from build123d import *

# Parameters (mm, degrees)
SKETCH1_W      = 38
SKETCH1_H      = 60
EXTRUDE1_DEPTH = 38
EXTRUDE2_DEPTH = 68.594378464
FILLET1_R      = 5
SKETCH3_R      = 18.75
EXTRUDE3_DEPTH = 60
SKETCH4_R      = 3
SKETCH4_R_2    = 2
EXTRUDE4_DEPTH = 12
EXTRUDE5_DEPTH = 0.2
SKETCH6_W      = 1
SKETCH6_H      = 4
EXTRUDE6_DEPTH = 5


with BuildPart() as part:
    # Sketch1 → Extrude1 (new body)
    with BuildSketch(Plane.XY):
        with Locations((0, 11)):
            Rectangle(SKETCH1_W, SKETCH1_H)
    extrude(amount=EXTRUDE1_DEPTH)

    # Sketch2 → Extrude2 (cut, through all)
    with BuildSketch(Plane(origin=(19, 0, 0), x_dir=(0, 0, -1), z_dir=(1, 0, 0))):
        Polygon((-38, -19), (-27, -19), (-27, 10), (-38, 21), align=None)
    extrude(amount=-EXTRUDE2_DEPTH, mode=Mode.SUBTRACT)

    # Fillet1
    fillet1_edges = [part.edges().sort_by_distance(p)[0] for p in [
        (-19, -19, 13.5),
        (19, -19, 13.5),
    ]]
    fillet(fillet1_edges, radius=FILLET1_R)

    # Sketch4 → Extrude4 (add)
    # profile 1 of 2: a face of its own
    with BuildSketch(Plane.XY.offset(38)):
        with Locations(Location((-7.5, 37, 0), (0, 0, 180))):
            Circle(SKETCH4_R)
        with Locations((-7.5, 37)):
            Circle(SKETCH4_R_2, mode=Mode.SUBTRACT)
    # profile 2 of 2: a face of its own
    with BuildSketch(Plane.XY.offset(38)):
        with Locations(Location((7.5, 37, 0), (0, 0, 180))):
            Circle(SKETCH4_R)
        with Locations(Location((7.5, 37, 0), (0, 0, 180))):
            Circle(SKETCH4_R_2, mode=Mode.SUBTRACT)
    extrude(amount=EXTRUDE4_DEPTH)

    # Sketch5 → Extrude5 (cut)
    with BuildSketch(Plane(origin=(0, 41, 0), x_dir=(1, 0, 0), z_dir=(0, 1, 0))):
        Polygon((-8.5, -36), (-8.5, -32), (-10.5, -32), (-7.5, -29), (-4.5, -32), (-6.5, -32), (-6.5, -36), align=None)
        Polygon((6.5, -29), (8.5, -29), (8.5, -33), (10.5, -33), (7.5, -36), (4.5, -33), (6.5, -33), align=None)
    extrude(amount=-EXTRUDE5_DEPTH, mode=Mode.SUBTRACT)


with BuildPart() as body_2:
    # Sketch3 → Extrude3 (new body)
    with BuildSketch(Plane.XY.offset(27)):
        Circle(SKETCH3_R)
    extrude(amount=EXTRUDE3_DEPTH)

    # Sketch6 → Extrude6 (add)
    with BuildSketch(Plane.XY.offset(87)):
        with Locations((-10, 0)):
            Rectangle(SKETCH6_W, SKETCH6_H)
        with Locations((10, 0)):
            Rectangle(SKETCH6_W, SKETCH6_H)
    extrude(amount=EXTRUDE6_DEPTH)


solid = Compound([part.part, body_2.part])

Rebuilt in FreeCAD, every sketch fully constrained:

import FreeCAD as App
import Part
import Sketcher

V = App.Vector
Q = App.Units.Quantity


def edges_at(feature, points):
    """Names of the edges that pass closest to the given points."""
    edges = feature.Shape.Edges
    near = lambda p: min(range(len(edges)), key=lambda i: edges[i].distToShape(Part.Vertex(*p))[0])
    return sorted({f"Edge{near(p) + 1}" for p in points})


def add_polygon(sketch, points):
    """Adds a closed chain of lines whose ends are joined by coincident constraints."""
    first, n = sketch.GeometryCount, len(points)
    for a, b in zip(points, points[1:] + points[:1]):
        sketch.addGeometry(Part.LineSegment(App.Vector(*a, 0), App.Vector(*b, 0)), False)
    for i in range(n):
        sketch.addConstraint(Sketcher.Constraint("Coincident", first + i, 2, first + (i + 1) % n, 1))

doc = App.newDocument("Part")
body = doc.addObject("PartDesign::Body", "Body")

# Sketch on XY plane
sketch1 = body.newObject("Sketcher::SketchObject", "Sketch")
sketch1.AttachmentSupport = (doc.getObject("XY_Plane"), [""])
sketch1.MapMode = "FlatFace"
add_polygon(sketch1, [(-19, 41), (-19, -19), (19, -19), (19, 41)])  # lines 0-3
sketch1.addConstraint([
    Sketcher.Constraint("Vertical", 0),
    Sketcher.Constraint("Horizontal", 1),
    Sketcher.Constraint("Vertical", 2),
    Sketcher.Constraint("Horizontal", 3),
    Sketcher.Constraint("DistanceX", 1, 1, 1, 2, Q("38 mm")),
    Sketcher.Constraint("DistanceY", 0, 2, 0, 1, Q("60 mm")),
    Sketcher.Constraint("DistanceX", 0, 2, -1, 1, Q("19 mm")),
    Sketcher.Constraint("DistanceY", 0, 2, -1, 1, Q("19 mm")),
])
pad1 = body.newObject("PartDesign::Pad", "Pad")
pad1.Profile = sketch1
pad1.Length = 38

# Sketch on YZ plane
sketch2 = body.newObject("Sketcher::SketchObject", "Sketch001")
sketch2.AttachmentSupport = (doc.getObject("YZ_Plane"), [""])
sketch2.MapMode = "FlatFace"
sketch2.AttachmentOffset = App.Placement(V(0, 0, 19), App.Rotation())
add_polygon(sketch2, [(-19, 38), (-19, 27), (10, 27), (21, 38)])  # lines 0-3
sketch2.addConstraint([
    Sketcher.Constraint("Vertical", 0),
    Sketcher.Constraint("Horizontal", 1),
    Sketcher.Constraint("Horizontal", 3),
    Sketcher.Constraint("DistanceX", 1, 1, 1, 2, Q("29 mm")),
    Sketcher.Constraint("DistanceX", 3, 2, 3, 1, Q("40 mm")),
    Sketcher.Constraint("DistanceY", 0, 2, 0, 1, Q("11 mm")),
    Sketcher.Constraint("DistanceX", 0, 2, -1, 1, Q("19 mm")),
    Sketcher.Constraint("DistanceY", -1, 1, 0, 2, Q("27 mm")),
])
pocket1 = body.newObject("PartDesign::Pocket", "Pocket")
pocket1.Profile = sketch2
pocket1.Type = "ThroughAll"
doc.recompute()

fillet = body.newObject("PartDesign::Fillet", "Fillet")
fillet.Base = (pocket1, edges_at(pocket1, [(-19, -19, 13.5), (19, -19, 13.5)]))
fillet.Radius = 5

# Sketch on XY plane
sketch3 = body.newObject("Sketcher::SketchObject", "Sketch002")
sketch3.AttachmentSupport = (doc.getObject("XY_Plane"), [""])
sketch3.MapMode = "FlatFace"
sketch3.AttachmentOffset = App.Placement(V(0, 0, 38), App.Rotation())
sketch3.addGeometry([
    Part.Circle(V(-7.5, 37, 0), V(0, 0, 1), 3),
    Part.Circle(V(-7.5, 37, 0), V(0, 0, 1), 2),
    Part.Circle(V(7.5, 37, 0), V(0, 0, 1), 3),
    Part.Circle(V(7.5, 37, 0), V(0, 0, 1), 2),
], False)
sketch3.addConstraint([
    Sketcher.Constraint("Coincident", 1, 3, 0, 3),
    Sketcher.Constraint("Coincident", 3, 3, 2, 3),
    Sketcher.Constraint("Equal", 0, 2),
    Sketcher.Constraint("Equal", 1, 3),
    Sketcher.Constraint("Symmetric", 0, 3, 2, 3, -2),
    Sketcher.Constraint("Diameter", 0, Q("6 mm")),
    Sketcher.Constraint("Diameter", 1, Q("4 mm")),
    Sketcher.Constraint("DistanceY", -1, 1, 0, 3, Q("37 mm")),
    Sketcher.Constraint("DistanceX", 0, 3, 2, 3, Q("15 mm")),
])
pad2 = body.newObject("PartDesign::Pad", "Pad001")
pad2.Profile = sketch3
pad2.Length = 12

# Sketch on XZ plane
sketch4 = body.newObject("Sketcher::SketchObject", "Sketch003")
sketch4.AttachmentSupport = (doc.getObject("XZ_Plane"), [""])
sketch4.MapMode = "FlatFace"
sketch4.AttachmentOffset = App.Placement(V(0, 0, -41), App.Rotation())
add_polygon(sketch4, [(-8.5, 32), (-8.5, 36), (-6.5, 36), (-6.5, 32), (-4.5, 32), (-7.5, 29), (-10.5, 32)])  # lines 0-6
add_polygon(sketch4, [(8.5, 29), (6.5, 29), (6.5, 33), (4.5, 33), (7.5, 36), (10.5, 33), (8.5, 33)])  # lines 7-13
sketch4.addConstraint([
    Sketcher.Constraint("Vertical", 0),
    Sketcher.Constraint("Horizontal", 1),
    Sketcher.Constraint("Vertical", 2),
    Sketcher.Constraint("Horizontal", 3),
    Sketcher.Constraint("Horizontal", 6),
    Sketcher.Constraint("Horizontal", 7),
    Sketcher.Constraint("Vertical", 8),
    Sketcher.Constraint("Horizontal", 9),
    Sketcher.Constraint("Horizontal", 12),
    Sketcher.Constraint("Vertical", 13),
    Sketcher.Constraint("Perpendicular", 4, 5),
    Sketcher.Constraint("Perpendicular", 5, 10),
    Sketcher.Constraint("Perpendicular", 10, 11),
    Sketcher.Constraint("Horizontal", 3, 2, 5, 2),
    Sketcher.Constraint("Horizontal", 4, 2, 7, 2),
    Sketcher.Constraint("Horizontal", 1, 2, 10, 2),
    Sketcher.Constraint("Horizontal", 9, 2, 11, 2),
    Sketcher.Constraint("Equal", 1, 3),
    Sketcher.Constraint("Equal", 3, 6),
    Sketcher.Constraint("Equal", 6, 7),
    Sketcher.Constraint("Equal", 7, 9),
    Sketcher.Constraint("Equal", 9, 12),
    Sketcher.Constraint("Equal", 4, 5),
    Sketcher.Constraint("DistanceX", 1, 1, 1, 2, Q("2 mm")),
    Sketcher.Constraint("DistanceY", 0, 1, 0, 2, Q("4 mm")),
    Sketcher.Constraint("DistanceY", -1, 1, 0, 2, Q("36 mm")),
    Sketcher.Constraint("DistanceX", 3, 2, 7, 2, Q("11 mm")),
    Sketcher.Constraint("DistanceX", 0, 2, -1, 1, Q("8.5 mm")),
])
pocket2 = body.newObject("PartDesign::Pocket", "Pocket001")
pocket2.Profile = sketch4
pocket2.Length = 0.2
pocket2.Reversed = True
body2 = doc.addObject("PartDesign::Body", "Body001")

# Sketch on XY plane
sketch5 = body2.newObject("Sketcher::SketchObject", "Sketch004")
sketch5.AttachmentSupport = (doc.getObject("XY_Plane001"), [""])
sketch5.MapMode = "FlatFace"
sketch5.AttachmentOffset = App.Placement(V(0, 0, 27), App.Rotation())
sketch5.addGeometry(Part.Circle(V(0, 0, 0), V(0, 0, 1), 19), False)
sketch5.addConstraint([
    Sketcher.Constraint("Coincident", 0, 3, -1, 1),
    Sketcher.Constraint("Diameter", 0, Q("37.5 mm")),
])
pad3 = body2.newObject("PartDesign::Pad", "Pad002")
pad3.Profile = sketch5
pad3.Length = 60

# Sketch on XY plane
sketch6 = body2.newObject("Sketcher::SketchObject", "Sketch005")
sketch6.AttachmentSupport = (doc.getObject("XY_Plane001"), [""])
sketch6.MapMode = "FlatFace"
sketch6.AttachmentOffset = App.Placement(V(0, 0, 87), App.Rotation())
add_polygon(sketch6, [(-10.5, 2), (-10.5, -2), (-9.5, -2), (-9.5, 2)])  # lines 0-3
add_polygon(sketch6, [(9.5, 2), (9.5, -2), (10.5, -2), (10.5, 2)])  # lines 4-7
sketch6.addConstraint([
    Sketcher.Constraint("Vertical", 0),
    Sketcher.Constraint("Horizontal", 1),
    Sketcher.Constraint("Vertical", 2),
    Sketcher.Constraint("Horizontal", 3),
    Sketcher.Constraint("Vertical", 4),
    Sketcher.Constraint("Horizontal", 5),
    Sketcher.Constraint("Vertical", 6),
    Sketcher.Constraint("Horizontal", 7),
    Sketcher.Constraint("Symmetric", 2, 2, 4, 2, -1, 1),
    Sketcher.Constraint("Symmetric", 0, 2, 6, 2, -1, 1),
    Sketcher.Constraint("Horizontal", 1, 2, 4, 2),
    Sketcher.Constraint("DistanceX", 1, 1, 1, 2, Q("1 mm")),
    Sketcher.Constraint("DistanceY", 0, 2, 0, 1, Q("4 mm")),
    Sketcher.Constraint("DistanceX", 1, 2, 4, 2, Q("19 mm")),
])
pad4 = body2.newObject("PartDesign::Pad", "Pad003")
pad4.Profile = sketch6
pad4.Length = 5

doc.recompute()
